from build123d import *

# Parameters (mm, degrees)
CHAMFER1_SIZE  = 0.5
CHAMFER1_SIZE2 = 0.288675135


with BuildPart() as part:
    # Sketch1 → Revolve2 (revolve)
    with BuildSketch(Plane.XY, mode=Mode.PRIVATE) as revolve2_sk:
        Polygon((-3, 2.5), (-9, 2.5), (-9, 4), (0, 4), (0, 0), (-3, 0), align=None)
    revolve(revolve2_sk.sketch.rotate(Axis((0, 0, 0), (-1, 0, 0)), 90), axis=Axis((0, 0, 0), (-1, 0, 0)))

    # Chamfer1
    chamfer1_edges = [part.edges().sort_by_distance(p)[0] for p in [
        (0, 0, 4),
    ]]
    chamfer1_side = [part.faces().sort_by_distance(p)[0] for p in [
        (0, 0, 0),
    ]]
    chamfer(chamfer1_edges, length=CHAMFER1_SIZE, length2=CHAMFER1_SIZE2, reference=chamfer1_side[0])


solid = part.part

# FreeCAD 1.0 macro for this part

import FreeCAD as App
import Part
import Sketcher

V = App.Vector


def edges_at(feature, points):
    """Names of the edges that pass closest to the given points."""
    edges = feature.Shape.Edges
    near = lambda p: min(range(len(edges)), key=lambda i: edges[i].distToShape(Part.Vertex(*p))[0])
    return sorted({f"Edge{near(p) + 1}" for p in points})


def add_polygon(sketch, points):
    """Adds a closed chain of lines whose ends are joined by coincident constraints."""
    first, n = sketch.GeometryCount, len(points)
    for a, b in zip(points, points[1:] + points[:1]):
        sketch.addGeometry(Part.LineSegment(App.Vector(*a, 0), App.Vector(*b, 0)), False)
    for i in range(n):
        sketch.addConstraint(Sketcher.Constraint("Coincident", first + i, 2, first + (i + 1) % n, 1))

doc = App.newDocument("Part")
body = doc.addObject("PartDesign::Body", "Body")

sketch1 = body.newObject("Sketcher::SketchObject", "Sketch")
sketch1.AttachmentSupport = (doc.getObject("XY_Plane"), [""])
sketch1.MapMode = "FlatFace"
add_polygon(sketch1, [(-9, 2.5), (-3, 2.5), (-3, 0), (0, 0), (0, 4), (-9, 4)])
sketch1.addConstraint([
    Sketcher.Constraint("Horizontal", 0),
    Sketcher.Constraint("Vertical", 1),
    Sketcher.Constraint("Horizontal", 2),
    Sketcher.Constraint("Vertical", 3),
    Sketcher.Constraint("Horizontal", 4),
    Sketcher.Constraint("Vertical", 5),
    Sketcher.Constraint("Coincident", 2, 2, -1, 1),
    Sketcher.Constraint("DistanceX", 0, 1, 0, 2, 6.0),
    Sketcher.Constraint("DistanceX", 2, 1, 2, 2, 3.0),
    Sketcher.Constraint("DistanceY", 3, 1, 3, 2, 4.0),
    Sketcher.Constraint("DistanceY", 1, 2, 1, 1, 2.5),
])
revolution = body.newObject("PartDesign::Revolution", "Revolution")
revolution.Profile = sketch1
revolution.ReferenceAxis = (sketch1, ["H_Axis"])
revolution.Angle = 360
doc.recompute()

chamfer = body.newObject("PartDesign::Chamfer", "Chamfer")
chamfer.Base = (revolution, edges_at(revolution, [(0, 0, 4)]))
chamfer.ChamferType = "Two distances"
chamfer.Size = 0.5
chamfer.Size2 = 0.288675

doc.recompute()
